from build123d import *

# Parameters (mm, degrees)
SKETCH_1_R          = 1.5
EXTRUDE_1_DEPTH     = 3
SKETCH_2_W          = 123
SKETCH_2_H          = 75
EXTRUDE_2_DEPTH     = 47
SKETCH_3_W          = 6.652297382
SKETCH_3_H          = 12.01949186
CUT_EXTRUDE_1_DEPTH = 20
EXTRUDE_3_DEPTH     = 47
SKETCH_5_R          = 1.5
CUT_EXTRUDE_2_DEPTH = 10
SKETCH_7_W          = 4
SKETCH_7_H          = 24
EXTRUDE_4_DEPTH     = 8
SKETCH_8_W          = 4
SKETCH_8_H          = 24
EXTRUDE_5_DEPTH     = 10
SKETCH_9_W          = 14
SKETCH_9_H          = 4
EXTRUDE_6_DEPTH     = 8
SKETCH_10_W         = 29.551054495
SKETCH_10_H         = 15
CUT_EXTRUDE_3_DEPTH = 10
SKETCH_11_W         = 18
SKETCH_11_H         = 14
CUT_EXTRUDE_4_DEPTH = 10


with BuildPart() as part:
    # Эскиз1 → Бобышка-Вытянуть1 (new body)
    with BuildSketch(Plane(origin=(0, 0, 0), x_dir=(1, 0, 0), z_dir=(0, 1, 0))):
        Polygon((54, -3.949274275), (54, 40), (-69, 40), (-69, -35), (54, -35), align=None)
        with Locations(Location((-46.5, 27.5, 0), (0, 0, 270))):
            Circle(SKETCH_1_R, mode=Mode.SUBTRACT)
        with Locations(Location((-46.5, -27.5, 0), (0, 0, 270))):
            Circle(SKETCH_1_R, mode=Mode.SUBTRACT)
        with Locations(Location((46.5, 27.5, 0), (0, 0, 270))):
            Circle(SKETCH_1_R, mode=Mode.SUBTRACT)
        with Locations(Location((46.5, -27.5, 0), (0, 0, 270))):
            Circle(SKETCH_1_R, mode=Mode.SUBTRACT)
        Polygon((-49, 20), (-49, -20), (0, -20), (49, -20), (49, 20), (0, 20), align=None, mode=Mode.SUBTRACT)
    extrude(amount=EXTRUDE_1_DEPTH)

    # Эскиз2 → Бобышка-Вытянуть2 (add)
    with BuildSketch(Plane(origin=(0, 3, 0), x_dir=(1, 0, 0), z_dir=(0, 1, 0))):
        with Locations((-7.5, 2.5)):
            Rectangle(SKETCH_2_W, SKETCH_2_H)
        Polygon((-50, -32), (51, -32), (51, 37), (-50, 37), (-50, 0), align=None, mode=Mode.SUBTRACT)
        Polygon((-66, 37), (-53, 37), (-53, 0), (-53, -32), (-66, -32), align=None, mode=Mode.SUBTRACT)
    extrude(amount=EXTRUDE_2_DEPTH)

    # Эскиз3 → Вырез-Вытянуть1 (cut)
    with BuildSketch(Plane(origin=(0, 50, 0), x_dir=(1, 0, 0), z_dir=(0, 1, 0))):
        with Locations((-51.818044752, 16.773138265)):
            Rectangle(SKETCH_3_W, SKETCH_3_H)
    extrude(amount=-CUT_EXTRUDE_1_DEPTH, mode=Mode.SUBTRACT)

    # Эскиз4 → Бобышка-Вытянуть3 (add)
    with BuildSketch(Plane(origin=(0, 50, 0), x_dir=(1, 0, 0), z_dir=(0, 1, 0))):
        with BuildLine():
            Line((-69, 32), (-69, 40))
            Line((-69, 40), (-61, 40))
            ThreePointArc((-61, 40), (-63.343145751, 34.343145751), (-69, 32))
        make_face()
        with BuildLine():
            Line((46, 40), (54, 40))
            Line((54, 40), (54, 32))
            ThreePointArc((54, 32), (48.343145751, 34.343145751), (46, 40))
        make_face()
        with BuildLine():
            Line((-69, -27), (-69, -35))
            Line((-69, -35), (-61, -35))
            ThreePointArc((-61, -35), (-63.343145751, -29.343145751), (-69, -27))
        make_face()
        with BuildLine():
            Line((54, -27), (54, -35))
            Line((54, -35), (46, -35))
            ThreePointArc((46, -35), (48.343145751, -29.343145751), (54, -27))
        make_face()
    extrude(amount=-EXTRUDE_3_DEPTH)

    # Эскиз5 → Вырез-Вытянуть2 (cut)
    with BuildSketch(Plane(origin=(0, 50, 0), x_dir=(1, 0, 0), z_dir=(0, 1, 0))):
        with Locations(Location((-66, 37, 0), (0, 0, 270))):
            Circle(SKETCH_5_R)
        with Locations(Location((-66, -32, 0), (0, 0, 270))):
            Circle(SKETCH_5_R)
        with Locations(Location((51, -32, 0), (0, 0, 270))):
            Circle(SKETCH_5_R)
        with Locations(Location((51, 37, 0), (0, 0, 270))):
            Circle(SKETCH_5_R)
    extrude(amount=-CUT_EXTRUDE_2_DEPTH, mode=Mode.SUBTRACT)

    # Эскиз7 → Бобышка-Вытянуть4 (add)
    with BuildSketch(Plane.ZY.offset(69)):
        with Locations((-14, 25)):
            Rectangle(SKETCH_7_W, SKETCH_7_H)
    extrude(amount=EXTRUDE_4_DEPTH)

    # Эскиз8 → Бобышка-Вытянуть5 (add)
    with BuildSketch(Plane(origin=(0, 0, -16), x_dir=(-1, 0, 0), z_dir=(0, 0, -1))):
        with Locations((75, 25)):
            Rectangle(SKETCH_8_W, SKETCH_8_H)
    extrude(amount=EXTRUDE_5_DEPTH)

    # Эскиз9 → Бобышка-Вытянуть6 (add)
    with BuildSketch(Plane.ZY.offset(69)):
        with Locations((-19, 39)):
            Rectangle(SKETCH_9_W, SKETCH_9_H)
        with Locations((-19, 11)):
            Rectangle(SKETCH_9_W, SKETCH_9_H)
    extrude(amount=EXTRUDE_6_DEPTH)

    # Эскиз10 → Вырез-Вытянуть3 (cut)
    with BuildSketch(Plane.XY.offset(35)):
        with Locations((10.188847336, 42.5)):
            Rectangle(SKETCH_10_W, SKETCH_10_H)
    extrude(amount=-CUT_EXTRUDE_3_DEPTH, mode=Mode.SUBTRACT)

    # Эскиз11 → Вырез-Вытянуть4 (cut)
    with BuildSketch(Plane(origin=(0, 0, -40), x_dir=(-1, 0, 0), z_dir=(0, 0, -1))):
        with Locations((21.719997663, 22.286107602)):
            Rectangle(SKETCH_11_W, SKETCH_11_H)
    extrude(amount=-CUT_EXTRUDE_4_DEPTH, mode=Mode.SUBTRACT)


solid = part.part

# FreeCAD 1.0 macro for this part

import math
import FreeCAD as App
import Part
import Sketcher
from FreeCAD import Vector
Q = App.Units.Quantity

doc = App.newDocument("Part")
body = doc.addObject("PartDesign::Body", "Body")

sketch1 = body.newObject("Sketcher::SketchObject", "Sketch")
sketch1.AttachmentSupport = (doc.getObject("XZ_Plane"), [""])
sketch1.MapMode = "FlatFace"
sketch1.addGeometry([
    Part.LineSegment(Vector(54, -40, 0), Vector(-69, -40, 0)),
    Part.LineSegment(Vector(-69, -40, 0), Vector(-69, 35, 0)),
    Part.LineSegment(Vector(-69, 35, 0), Vector(54, 35, 0)),
    Part.LineSegment(Vector(54, 35, 0), Vector(54, -40, 0)),
    Part.Circle(Vector(-46.5, 27.5, 0), Vector(0, 0, 1), 1.5),
    Part.Circle(Vector(46.5, 27.5, 0), Vector(0, 0, 1), 1.5),
    Part.LineSegment(Vector(-49, 20, 0), Vector(-49, -20, 0)),
    Part.LineSegment(Vector(-49, -20, 0), Vector(49, -20, 0)),
    Part.LineSegment(Vector(49, -20, 0), Vector(49, 20, 0)),
    Part.LineSegment(Vector(49, 20, 0), Vector(-49, 20, 0)),
    Part.Circle(Vector(-46.5, -27.5, 0), Vector(0, 0, 1), 1.5),
    Part.Circle(Vector(46.5, -27.5, 0), Vector(0, 0, 1), 1.5),
], False)
sketch1.addConstraint([
    Sketcher.Constraint("Coincident", 0, 2, 1, 1),
    Sketcher.Constraint("Coincident", 1, 2, 2, 1),
    Sketcher.Constraint("Coincident", 2, 2, 3, 1),
    Sketcher.Constraint("Coincident", 3, 2, 0, 1),
    Sketcher.Constraint("Coincident", 6, 2, 7, 1),
    Sketcher.Constraint("Coincident", 7, 2, 8, 1),
    Sketcher.Constraint("Coincident", 8, 2, 9, 1),
    Sketcher.Constraint("Coincident", 9, 2, 6, 1),
    Sketcher.Constraint("Horizontal", 0),
    Sketcher.Constraint("Vertical", 1),
    Sketcher.Constraint("Horizontal", 2),
    Sketcher.Constraint("Vertical", 3),
    Sketcher.Constraint("Vertical", 6),
    Sketcher.Constraint("Horizontal", 7),
    Sketcher.Constraint("Vertical", 8),
    Sketcher.Constraint("Horizontal", 9),
    Sketcher.Constraint("Equal", 4, 5),
    Sketcher.Constraint("Equal", 5, 10),
    Sketcher.Constraint("Equal", 10, 11),
    Sketcher.Constraint("Symmetric", 5, 3, 10, 3, -1, 1),
    Sketcher.Constraint("Symmetric", 4, 3, 11, 3, -1, 1),
    Sketcher.Constraint("Symmetric", 6, 2, 8, 2, -1, 1),
    Sketcher.Constraint("Symmetric", 4, 3, 5, 3, -2),
    Sketcher.Constraint("Diameter", 4, Q("3 mm")),
    Sketcher.Constraint("DistanceX", 0, 2, 0, 1, Q("123 mm")),
    Sketcher.Constraint("DistanceX", 7, 1, 7, 2, Q("98 mm")),
    Sketcher.Constraint("DistanceY", 1, 1, 1, 2, Q("75 mm")),
    Sketcher.Constraint("DistanceY", 6, 2, 6, 1, Q("40 mm")),
    Sketcher.Constraint("DistanceX", 0, 2, -1, 1, Q("69 mm")),
    Sketcher.Constraint("DistanceY", 0, 2, -1, 1, Q("40 mm")),
    Sketcher.Constraint("DistanceX", 4, 3, 5, 3, Q("93 mm")),
    Sketcher.Constraint("DistanceY", 10, 3, 4, 3, Q("55 mm")),
])
pad1 = body.newObject("PartDesign::Pad", "Pad")
pad1.Profile = sketch1
pad1.Length = 3
pad1.Reversed = True

sketch2 = body.newObject("Sketcher::SketchObject", "Sketch001")
sketch2.AttachmentSupport = (doc.getObject("XZ_Plane"), [""])
sketch2.MapMode = "FlatFace"
sketch2.AttachmentOffset = App.Placement(Vector(0, 0, -3), App.Rotation())
sketch2.addGeometry([
    Part.LineSegment(Vector(-69, -40, 0), Vector(-69, 35, 0)),
    Part.LineSegment(Vector(-69, 35, 0), Vector(54, 35, 0)),
    Part.LineSegment(Vector(54, 35, 0), Vector(54, -40, 0)),
    Part.LineSegment(Vector(54, -40, 0), Vector(-69, -40, 0)),
    Part.LineSegment(Vector(-66, 32, 0), Vector(-66, -37, 0)),
    Part.LineSegment(Vector(-66, -37, 0), Vector(-53, -37, 0)),
    Part.LineSegment(Vector(-53, -37, 0), Vector(-53, 32, 0)),
    Part.LineSegment(Vector(-53, 32, 0), Vector(-66, 32, 0)),
    Part.LineSegment(Vector(51, 32, 0), Vector(-50, 32, 0)),
    Part.LineSegment(Vector(-50, 32, 0), Vector(-50, -37, 0)),
    Part.LineSegment(Vector(-50, -37, 0), Vector(51, -37, 0)),
    Part.LineSegment(Vector(51, -37, 0), Vector(51, 32, 0)),
], False)
sketch2.addConstraint([
    Sketcher.Constraint("Coincident", 0, 2, 1, 1),
    Sketcher.Constraint("Coincident", 1, 2, 2, 1),
    Sketcher.Constraint("Coincident", 2, 2, 3, 1),
    Sketcher.Constraint("Coincident", 3, 2, 0, 1),
    Sketcher.Constraint("Coincident", 4, 2, 5, 1),
    Sketcher.Constraint("Coincident", 5, 2, 6, 1),
    Sketcher.Constraint("Coincident", 6, 2, 7, 1),
    Sketcher.Constraint("Coincident", 7, 2, 4, 1),
    Sketcher.Constraint("Coincident", 8, 2, 9, 1),
    Sketcher.Constraint("Coincident", 9, 2, 10, 1),
    Sketcher.Constraint("Coincident", 10, 2, 11, 1),
    Sketcher.Constraint("Coincident", 11, 2, 8, 1),
    Sketcher.Constraint("Vertical", 0),
    Sketcher.Constraint("Horizontal", 1),
    Sketcher.Constraint("Vertical", 2),
    Sketcher.Constraint("Horizontal", 3),
    Sketcher.Constraint("Vertical", 4),
    Sketcher.Constraint("Horizontal", 5),
    Sketcher.Constraint("Vertical", 6),
    Sketcher.Constraint("Horizontal", 7),
    Sketcher.Constraint("Horizontal", 8),
    Sketcher.Constraint("Vertical", 9),
    Sketcher.Constraint("Horizontal", 10),
    Sketcher.Constraint("Vertical", 11),
    Sketcher.Constraint("Horizontal", 7, 2, 8, 2),
    Sketcher.Constraint("Horizontal", 5, 2, 9, 2),
    Sketcher.Constraint("DistanceX", 1, 1, 1, 2, Q("123 mm")),
    Sketcher.Constraint("DistanceX", 5, 1, 5, 2, Q("13 mm")),
    Sketcher.Constraint("DistanceX", 8, 2, 8, 1, Q("101 mm")),
    Sketcher.Constraint("DistanceY", 0, 1, 0, 2, Q("75 mm")),
    Sketcher.Constraint("DistanceY", 4, 2, 4, 1, Q("69 mm")),
    Sketcher.Constraint("DistanceX", 0, 2, -1, 1, Q("69 mm")),
    Sketcher.Constraint("DistanceY", -1, 1, 0, 2, Q("35 mm")),
    Sketcher.Constraint("DistanceX", 4, 2, -1, 1, Q("66 mm")),
    Sketcher.Constraint("DistanceY", 4, 2, -1, 1, Q("37 mm")),
    Sketcher.Constraint("DistanceX", 8, 2, -1, 1, Q("50 mm")),
])
pad2 = body.newObject("PartDesign::Pad", "Pad001")
pad2.Profile = sketch2
pad2.Length = 47
pad2.Reversed = True

sketch3 = body.newObject("Sketcher::SketchObject", "Sketch002")
sketch3.AttachmentSupport = (doc.getObject("XZ_Plane"), [""])
sketch3.MapMode = "FlatFace"
sketch3.AttachmentOffset = App.Placement(Vector(0, 0, -50), App.Rotation())
sketch3.addGeometry([
    Part.LineSegment(Vector(-55, -23, 0), Vector(-55, -11, 0)),
    Part.LineSegment(Vector(-55, -11, 0), Vector(-48, -11, 0)),
    Part.LineSegment(Vector(-48, -11, 0), Vector(-48, -23, 0)),
    Part.LineSegment(Vector(-48, -23, 0), Vector(-55, -23, 0)),
], False)
sketch3.addConstraint([
    Sketcher.Constraint("Coincident", 0, 2, 1, 1),
    Sketcher.Constraint("Coincident", 1, 2, 2, 1),
    Sketcher.Constraint("Coincident", 2, 2, 3, 1),
    Sketcher.Constraint("Coincident", 3, 2, 0, 1),
    Sketcher.Constraint("Vertical", 0),
    Sketcher.Constraint("Horizontal", 1),
    Sketcher.Constraint("Vertical", 2),
    Sketcher.Constraint("Horizontal", 3),
    Sketcher.Constraint("DistanceY", 0, 1, 0, 2, Q("12.019492 mm")),
    Sketcher.Constraint("DistanceX", 1, 1, 1, 2, Q("6.652297 mm")),
    Sketcher.Constraint("DistanceX", 0, 2, -1, 1, Q("55.144193 mm")),
    Sketcher.Constraint("DistanceY", 0, 2, -1, 1, Q("10.763392 mm")),
])
pocket1 = body.newObject("PartDesign::Pocket", "Pocket")
pocket1.Profile = sketch3
pocket1.Length = 20
pocket1.Reversed = True

sketch4 = body.newObject("Sketcher::SketchObject", "Sketch003")
sketch4.AttachmentSupport = (doc.getObject("XZ_Plane"), [""])
sketch4.MapMode = "FlatFace"
sketch4.AttachmentOffset = App.Placement(Vector(0, 0, -50), App.Rotation())
sketch4.addGeometry([
    Part.LineSegment(Vector(-69, -40, 0), Vector(-69, -32, 0)),
    Part.ArcOfCircle(Part.Circle(Vector(-69, -40, 0), Vector(0, 0, 1), 8), math.radians(0), math.radians(90)),
    Part.LineSegment(Vector(-61, -40, 0), Vector(-69, -40, 0)),
    Part.LineSegment(Vector(54, -40, 0), Vector(46, -40, 0)),
    Part.ArcOfCircle(Part.Circle(Vector(54, -40, 0), Vector(0, 0, 1), 8), math.radians(90), math.radians(180)),
    Part.LineSegment(Vector(54, -32, 0), Vector(54, -40, 0)),
    Part.LineSegment(Vector(-69, 27, 0), Vector(-69, 35, 0)),
    Part.LineSegment(Vector(-69, 35, 0), Vector(-61, 35, 0)),
    Part.ArcOfCircle(Part.Circle(Vector(-69, 35, 0), Vector(0, 0, 1), 8), math.radians(-90), math.radians(0)),
    Part.LineSegment(Vector(54, 35, 0), Vector(54, 27, 0)),
    Part.ArcOfCircle(Part.Circle(Vector(54, 35, 0), Vector(0, 0, 1), 8), math.radians(-180), math.radians(-90)),
    Part.LineSegment(Vector(46, 35, 0), Vector(54, 35, 0)),
], False)
sketch4.addConstraint([
    Sketcher.Constraint("Coincident", 0, 2, 1, 2),
    Sketcher.Constraint("Coincident", 1, 1, 2, 1),
    Sketcher.Constraint("Coincident", 2, 2, 0, 1),
    Sketcher.Constraint("Coincident", 3, 2, 4, 2),
    Sketcher.Constraint("Coincident", 4, 1, 5, 1),
    Sketcher.Constraint("Coincident", 5, 2, 3, 1),
    Sketcher.Constraint("Coincident", 6, 2, 7, 1),
    Sketcher.Constraint("Coincident", 7, 2, 8, 2),
    Sketcher.Constraint("Coincident", 8, 1, 6, 1),
    Sketcher.Constraint("Coincident", 9, 2, 10, 2),
    Sketcher.Constraint("Coincident", 10, 1, 11, 1),
    Sketcher.Constraint("Coincident", 11, 2, 9, 1),
    Sketcher.Constraint("Vertical", 0),
    Sketcher.Constraint("Horizontal", 2),
    Sketcher.Constraint("Horizontal", 3),
    Sketcher.Constraint("Vertical", 5),
    Sketcher.Constraint("Vertical", 6),
    Sketcher.Constraint("Horizontal", 7),
    Sketcher.Constraint("Vertical", 9),
    Sketcher.Constraint("Horizontal", 11),
    Sketcher.Constraint("Coincident", 2, 2, 1, 3),
    Sketcher.Constraint("Coincident", 5, 2, 4, 3),
    Sketcher.Constraint("Coincident", 6, 2, 8, 3),
    Sketcher.Constraint("Coincident", 11, 2, 10, 3),
    Sketcher.Constraint("Equal", 1, 4),
    Sketcher.Constraint("Equal", 4, 8),
    Sketcher.Constraint("Equal", 8, 10),
    Sketcher.Constraint("Horizontal", 1, 3, 4, 3),
    Sketcher.Constraint("Horizontal", 8, 3, 10, 3),
    Sketcher.Constraint("Vertical", 1, 3, 8, 3),
    Sketcher.Constraint("Vertical", 4, 3, 10, 3),
    Sketcher.Constraint("Radius", 1, Q("8 mm")),
    Sketcher.Constraint("DistanceX", 1, 3, -1, 1, Q("69 mm")),
    Sketcher.Constraint("DistanceY", 1, 3, -1, 1, Q("40 mm")),
    Sketcher.Constraint("DistanceX", -1, 1, 4, 3, Q("54 mm")),
    Sketcher.Constraint("DistanceY", -1, 1, 8, 3, Q("35 mm")),
])
pad3 = body.newObject("PartDesign::Pad", "Pad002")
pad3.Profile = sketch4
pad3.Length = 47

sketch5 = body.newObject("Sketcher::SketchObject", "Sketch004")
sketch5.AttachmentSupport = (doc.getObject("XZ_Plane"), [""])
sketch5.MapMode = "FlatFace"
sketch5.AttachmentOffset = App.Placement(Vector(0, 0, -50), App.Rotation())
sketch5.addGeometry([
    Part.Circle(Vector(-66, -37, 0), Vector(0, 0, 1), 1.5),
    Part.Circle(Vector(-66, 32, 0), Vector(0, 0, 1), 1.5),
    Part.Circle(Vector(51, 32, 0), Vector(0, 0, 1), 1.5),
    Part.Circle(Vector(51, -37, 0), Vector(0, 0, 1), 1.5),
], False)
sketch5.addConstraint([
    Sketcher.Constraint("Equal", 0, 1),
    Sketcher.Constraint("Equal", 1, 2),
    Sketcher.Constraint("Equal", 2, 3),
    Sketcher.Constraint("Horizontal", 1, 3, 2, 3),
    Sketcher.Constraint("Horizontal", 0, 3, 3, 3),
    Sketcher.Constraint("Vertical", 0, 3, 1, 3),
    Sketcher.Constraint("Vertical", 2, 3, 3, 3),
    Sketcher.Constraint("Diameter", 0, Q("3 mm")),
    Sketcher.Constraint("DistanceX", 0, 3, -1, 1, Q("66 mm")),
    Sketcher.Constraint("DistanceY", 0, 3, -1, 1, Q("37 mm")),
    Sketcher.Constraint("DistanceY", -1, 1, 1, 3, Q("32 mm")),
    Sketcher.Constraint("DistanceX", -1, 1, 2, 3, Q("51 mm")),
])
pocket2 = body.newObject("PartDesign::Pocket", "Pocket001")
pocket2.Profile = sketch5
pocket2.Length = 10
pocket2.Reversed = True

sketch6 = body.newObject("Sketcher::SketchObject", "Sketch005")
sketch6.AttachmentSupport = (doc.getObject("YZ_Plane"), [""])
sketch6.MapMode = "FlatFace"
sketch6.AttachmentOffset = App.Placement(Vector(0, 0, -69), App.Rotation())
sketch6.addGeometry([
    Part.LineSegment(Vector(37, -16, 0), Vector(13, -16, 0)),
    Part.LineSegment(Vector(13, -16, 0), Vector(13, -12, 0)),
    Part.LineSegment(Vector(13, -12, 0), Vector(37, -12, 0)),
    Part.LineSegment(Vector(37, -12, 0), Vector(37, -16, 0)),
], False)
sketch6.addConstraint([
    Sketcher.Constraint("Coincident", 0, 2, 1, 1),
    Sketcher.Constraint("Coincident", 1, 2, 2, 1),
    Sketcher.Constraint("Coincident", 2, 2, 3, 1),
    Sketcher.Constraint("Coincident", 3, 2, 0, 1),
    Sketcher.Constraint("Horizontal", 0),
    Sketcher.Constraint("Vertical", 1),
    Sketcher.Constraint("Horizontal", 2),
    Sketcher.Constraint("Vertical", 3),
    Sketcher.Constraint("DistanceX", 0, 2, 0, 1, Q("24 mm")),
    Sketcher.Constraint("DistanceY", 1, 1, 1, 2, Q("4 mm")),
    Sketcher.Constraint("DistanceX", -1, 1, 0, 2, Q("13 mm")),
    Sketcher.Constraint("DistanceY", 0, 2, -1, 1, Q("16 mm")),
])
pad4 = body.newObject("PartDesign::Pad", "Pad003")
pad4.Profile = sketch6
pad4.Length = 8
pad4.Reversed = True

sketch7 = body.newObject("Sketcher::SketchObject", "Sketch006")
sketch7.AttachmentSupport = (doc.getObject("XY_Plane"), [""])
sketch7.MapMode = "FlatFace"
sketch7.AttachmentOffset = App.Placement(Vector(0, 0, -16), App.Rotation())
sketch7.addGeometry([
    Part.LineSegment(Vector(-73, 37, 0), Vector(-73, 13, 0)),
    Part.LineSegment(Vector(-73, 13, 0), Vector(-77, 13, 0)),
    Part.LineSegment(Vector(-77, 13, 0), Vector(-77, 37, 0)),
    Part.LineSegment(Vector(-77, 37, 0), Vector(-73, 37, 0)),
], False)
sketch7.addConstraint([
    Sketcher.Constraint("Coincident", 0, 2, 1, 1),
    Sketcher.Constraint("Coincident", 1, 2, 2, 1),
    Sketcher.Constraint("Coincident", 2, 2, 3, 1),
    Sketcher.Constraint("Coincident", 3, 2, 0, 1),
    Sketcher.Constraint("Vertical", 0),
    Sketcher.Constraint("Horizontal", 1),
    Sketcher.Constraint("Vertical", 2),
    Sketcher.Constraint("Horizontal", 3),
    Sketcher.Constraint("DistanceX", 1, 2, 1, 1, Q("4 mm")),
    Sketcher.Constraint("DistanceY", 0, 2, 0, 1, Q("24 mm")),
    Sketcher.Constraint("DistanceX", 0, 2, -1, 1, Q("73 mm")),
    Sketcher.Constraint("DistanceY", -1, 1, 0, 2, Q("13 mm")),
])
pad5 = body.newObject("PartDesign::Pad", "Pad004")
pad5.Profile = sketch7
pad5.Length = 10
pad5.Reversed = True

sketch8 = body.newObject("Sketcher::SketchObject", "Sketch007")
sketch8.AttachmentSupport = (doc.getObject("YZ_Plane"), [""])
sketch8.MapMode = "FlatFace"
sketch8.AttachmentOffset = App.Placement(Vector(0, 0, -69), App.Rotation())
sketch8.addGeometry([
    Part.LineSegment(Vector(41, -26, 0), Vector(37, -26, 0)),
    Part.LineSegment(Vector(37, -26, 0), Vector(37, -12, 0)),
    Part.LineSegment(Vector(37, -12, 0), Vector(41, -12, 0)),
    Part.LineSegment(Vector(41, -12, 0), Vector(41, -26, 0)),
    Part.LineSegment(Vector(13, -26, 0), Vector(9, -26, 0)),
    Part.LineSegment(Vector(9, -26, 0), Vector(9, -12, 0)),
    Part.LineSegment(Vector(9, -12, 0), Vector(13, -12, 0)),
    Part.LineSegment(Vector(13, -12, 0), Vector(13, -26, 0)),
], False)
sketch8.addConstraint([
    Sketcher.Constraint("Coincident", 0, 2, 1, 1),
    Sketcher.Constraint("Coincident", 1, 2, 2, 1),
    Sketcher.Constraint("Coincident", 2, 2, 3, 1),
    Sketcher.Constraint("Coincident", 3, 2, 0, 1),
    Sketcher.Constraint("Coincident", 4, 2, 5, 1),
    Sketcher.Constraint("Coincident", 5, 2, 6, 1),
    Sketcher.Constraint("Coincident", 6, 2, 7, 1),
    Sketcher.Constraint("Coincident", 7, 2, 4, 1),
    Sketcher.Constraint("Horizontal", 0),
    Sketcher.Constraint("Vertical", 1),
    Sketcher.Constraint("Horizontal", 2),
    Sketcher.Constraint("Vertical", 3),
    Sketcher.Constraint("Horizontal", 4),
    Sketcher.Constraint("Vertical", 5),
    Sketcher.Constraint("Horizontal", 6),
    Sketcher.Constraint("Vertical", 7),
    Sketcher.Constraint("Horizontal", 3, 2, 4, 2),
    Sketcher.Constraint("Horizontal", 2, 2, 5, 2),
    Sketcher.Constraint("Equal", 2, 4),
    Sketcher.Constraint("DistanceX", 0, 2, 0, 1, Q("4 mm")),
    Sketcher.Constraint("DistanceY", 1, 1, 1, 2, Q("14 mm")),
    Sketcher.Constraint("DistanceX", -1, 1, 0, 2, Q("37 mm")),
    Sketcher.Constraint("DistanceY", 0, 2, -1, 1, Q("26 mm")),
    Sketcher.Constraint("DistanceX", -1, 1, 4, 2, Q("9 mm")),
])
pad6 = body.newObject("PartDesign::Pad", "Pad005")
pad6.Profile = sketch8
pad6.Length = 8
pad6.Reversed = True

sketch9 = body.newObject("Sketcher::SketchObject", "Sketch008")
sketch9.AttachmentSupport = (doc.getObject("XY_Plane"), [""])
sketch9.MapMode = "FlatFace"
sketch9.AttachmentOffset = App.Placement(Vector(0, 0, 35), App.Rotation())
sketch9.addGeometry([
    Part.LineSegment(Vector(-5, 50, 0), Vector(-5, 35, 0)),
    Part.LineSegment(Vector(-5, 35, 0), Vector(25, 35, 0)),
    Part.LineSegment(Vector(25, 35, 0), Vector(25, 50, 0)),
    Part.LineSegment(Vector(25, 50, 0), Vector(-5, 50, 0)),
], False)
sketch9.addConstraint([
    Sketcher.Constraint("Coincident", 0, 2, 1, 1),
    Sketcher.Constraint("Coincident", 1, 2, 2, 1),
    Sketcher.Constraint("Coincident", 2, 2, 3, 1),
    Sketcher.Constraint("Coincident", 3, 2, 0, 1),
    Sketcher.Constraint("Vertical", 0),
    Sketcher.Constraint("Horizontal", 1),
    Sketcher.Constraint("Vertical", 2),
    Sketcher.Constraint("Horizontal", 3),
    Sketcher.Constraint("DistanceY", 0, 2, 0, 1, Q("15 mm")),
    Sketcher.Constraint("DistanceY", -1, 1, 0, 2, Q("35 mm")),
    Sketcher.Constraint("DistanceX", 1, 1, 1, 2, Q("29.551054 mm")),
    Sketcher.Constraint("DistanceX", 0, 2, -1, 1, Q("4.58668 mm")),
])
pocket3 = body.newObject("PartDesign::Pocket", "Pocket002")
pocket3.Profile = sketch9
pocket3.Length = 10

sketch10 = body.newObject("Sketcher::SketchObject", "Sketch009")
sketch10.AttachmentSupport = (doc.getObject("XY_Plane"), [""])
sketch10.MapMode = "FlatFace"
sketch10.AttachmentOffset = App.Placement(Vector(0, 0, -40), App.Rotation())
sketch10.addGeometry([
    Part.LineSegment(Vector(-13, 29, 0), Vector(-13, 15, 0)),
    Part.LineSegment(Vector(-13, 15, 0), Vector(-31, 15, 0)),
    Part.LineSegment(Vector(-31, 15, 0), Vector(-31, 29, 0)),
    Part.LineSegment(Vector(-31, 29, 0), Vector(-13, 29, 0)),
], False)
sketch10.addConstraint([
    Sketcher.Constraint("Coincident", 0, 2, 1, 1),
    Sketcher.Constraint("Coincident", 1, 2, 2, 1),
    Sketcher.Constraint("Coincident", 2, 2, 3, 1),
    Sketcher.Constraint("Coincident", 3, 2, 0, 1),
    Sketcher.Constraint("Vertical", 0),
    Sketcher.Constraint("Horizontal", 1),
    Sketcher.Constraint("Vertical", 2),
    Sketcher.Constraint("Horizontal", 3),
    Sketcher.Constraint("DistanceX", 1, 2, 1, 1, Q("18 mm")),
    Sketcher.Constraint("DistanceY", 0, 2, 0, 1, Q("14 mm")),
    Sketcher.Constraint("DistanceX", 0, 2, -1, 1, Q("12.719998 mm")),
    Sketcher.Constraint("DistanceY", -1, 1, 0, 2, Q("15.286108 mm")),
])
pocket4 = body.newObject("PartDesign::Pocket", "Pocket003")
pocket4.Profile = sketch10
pocket4.Length = 10
pocket4.Reversed = True

doc.recompute()
